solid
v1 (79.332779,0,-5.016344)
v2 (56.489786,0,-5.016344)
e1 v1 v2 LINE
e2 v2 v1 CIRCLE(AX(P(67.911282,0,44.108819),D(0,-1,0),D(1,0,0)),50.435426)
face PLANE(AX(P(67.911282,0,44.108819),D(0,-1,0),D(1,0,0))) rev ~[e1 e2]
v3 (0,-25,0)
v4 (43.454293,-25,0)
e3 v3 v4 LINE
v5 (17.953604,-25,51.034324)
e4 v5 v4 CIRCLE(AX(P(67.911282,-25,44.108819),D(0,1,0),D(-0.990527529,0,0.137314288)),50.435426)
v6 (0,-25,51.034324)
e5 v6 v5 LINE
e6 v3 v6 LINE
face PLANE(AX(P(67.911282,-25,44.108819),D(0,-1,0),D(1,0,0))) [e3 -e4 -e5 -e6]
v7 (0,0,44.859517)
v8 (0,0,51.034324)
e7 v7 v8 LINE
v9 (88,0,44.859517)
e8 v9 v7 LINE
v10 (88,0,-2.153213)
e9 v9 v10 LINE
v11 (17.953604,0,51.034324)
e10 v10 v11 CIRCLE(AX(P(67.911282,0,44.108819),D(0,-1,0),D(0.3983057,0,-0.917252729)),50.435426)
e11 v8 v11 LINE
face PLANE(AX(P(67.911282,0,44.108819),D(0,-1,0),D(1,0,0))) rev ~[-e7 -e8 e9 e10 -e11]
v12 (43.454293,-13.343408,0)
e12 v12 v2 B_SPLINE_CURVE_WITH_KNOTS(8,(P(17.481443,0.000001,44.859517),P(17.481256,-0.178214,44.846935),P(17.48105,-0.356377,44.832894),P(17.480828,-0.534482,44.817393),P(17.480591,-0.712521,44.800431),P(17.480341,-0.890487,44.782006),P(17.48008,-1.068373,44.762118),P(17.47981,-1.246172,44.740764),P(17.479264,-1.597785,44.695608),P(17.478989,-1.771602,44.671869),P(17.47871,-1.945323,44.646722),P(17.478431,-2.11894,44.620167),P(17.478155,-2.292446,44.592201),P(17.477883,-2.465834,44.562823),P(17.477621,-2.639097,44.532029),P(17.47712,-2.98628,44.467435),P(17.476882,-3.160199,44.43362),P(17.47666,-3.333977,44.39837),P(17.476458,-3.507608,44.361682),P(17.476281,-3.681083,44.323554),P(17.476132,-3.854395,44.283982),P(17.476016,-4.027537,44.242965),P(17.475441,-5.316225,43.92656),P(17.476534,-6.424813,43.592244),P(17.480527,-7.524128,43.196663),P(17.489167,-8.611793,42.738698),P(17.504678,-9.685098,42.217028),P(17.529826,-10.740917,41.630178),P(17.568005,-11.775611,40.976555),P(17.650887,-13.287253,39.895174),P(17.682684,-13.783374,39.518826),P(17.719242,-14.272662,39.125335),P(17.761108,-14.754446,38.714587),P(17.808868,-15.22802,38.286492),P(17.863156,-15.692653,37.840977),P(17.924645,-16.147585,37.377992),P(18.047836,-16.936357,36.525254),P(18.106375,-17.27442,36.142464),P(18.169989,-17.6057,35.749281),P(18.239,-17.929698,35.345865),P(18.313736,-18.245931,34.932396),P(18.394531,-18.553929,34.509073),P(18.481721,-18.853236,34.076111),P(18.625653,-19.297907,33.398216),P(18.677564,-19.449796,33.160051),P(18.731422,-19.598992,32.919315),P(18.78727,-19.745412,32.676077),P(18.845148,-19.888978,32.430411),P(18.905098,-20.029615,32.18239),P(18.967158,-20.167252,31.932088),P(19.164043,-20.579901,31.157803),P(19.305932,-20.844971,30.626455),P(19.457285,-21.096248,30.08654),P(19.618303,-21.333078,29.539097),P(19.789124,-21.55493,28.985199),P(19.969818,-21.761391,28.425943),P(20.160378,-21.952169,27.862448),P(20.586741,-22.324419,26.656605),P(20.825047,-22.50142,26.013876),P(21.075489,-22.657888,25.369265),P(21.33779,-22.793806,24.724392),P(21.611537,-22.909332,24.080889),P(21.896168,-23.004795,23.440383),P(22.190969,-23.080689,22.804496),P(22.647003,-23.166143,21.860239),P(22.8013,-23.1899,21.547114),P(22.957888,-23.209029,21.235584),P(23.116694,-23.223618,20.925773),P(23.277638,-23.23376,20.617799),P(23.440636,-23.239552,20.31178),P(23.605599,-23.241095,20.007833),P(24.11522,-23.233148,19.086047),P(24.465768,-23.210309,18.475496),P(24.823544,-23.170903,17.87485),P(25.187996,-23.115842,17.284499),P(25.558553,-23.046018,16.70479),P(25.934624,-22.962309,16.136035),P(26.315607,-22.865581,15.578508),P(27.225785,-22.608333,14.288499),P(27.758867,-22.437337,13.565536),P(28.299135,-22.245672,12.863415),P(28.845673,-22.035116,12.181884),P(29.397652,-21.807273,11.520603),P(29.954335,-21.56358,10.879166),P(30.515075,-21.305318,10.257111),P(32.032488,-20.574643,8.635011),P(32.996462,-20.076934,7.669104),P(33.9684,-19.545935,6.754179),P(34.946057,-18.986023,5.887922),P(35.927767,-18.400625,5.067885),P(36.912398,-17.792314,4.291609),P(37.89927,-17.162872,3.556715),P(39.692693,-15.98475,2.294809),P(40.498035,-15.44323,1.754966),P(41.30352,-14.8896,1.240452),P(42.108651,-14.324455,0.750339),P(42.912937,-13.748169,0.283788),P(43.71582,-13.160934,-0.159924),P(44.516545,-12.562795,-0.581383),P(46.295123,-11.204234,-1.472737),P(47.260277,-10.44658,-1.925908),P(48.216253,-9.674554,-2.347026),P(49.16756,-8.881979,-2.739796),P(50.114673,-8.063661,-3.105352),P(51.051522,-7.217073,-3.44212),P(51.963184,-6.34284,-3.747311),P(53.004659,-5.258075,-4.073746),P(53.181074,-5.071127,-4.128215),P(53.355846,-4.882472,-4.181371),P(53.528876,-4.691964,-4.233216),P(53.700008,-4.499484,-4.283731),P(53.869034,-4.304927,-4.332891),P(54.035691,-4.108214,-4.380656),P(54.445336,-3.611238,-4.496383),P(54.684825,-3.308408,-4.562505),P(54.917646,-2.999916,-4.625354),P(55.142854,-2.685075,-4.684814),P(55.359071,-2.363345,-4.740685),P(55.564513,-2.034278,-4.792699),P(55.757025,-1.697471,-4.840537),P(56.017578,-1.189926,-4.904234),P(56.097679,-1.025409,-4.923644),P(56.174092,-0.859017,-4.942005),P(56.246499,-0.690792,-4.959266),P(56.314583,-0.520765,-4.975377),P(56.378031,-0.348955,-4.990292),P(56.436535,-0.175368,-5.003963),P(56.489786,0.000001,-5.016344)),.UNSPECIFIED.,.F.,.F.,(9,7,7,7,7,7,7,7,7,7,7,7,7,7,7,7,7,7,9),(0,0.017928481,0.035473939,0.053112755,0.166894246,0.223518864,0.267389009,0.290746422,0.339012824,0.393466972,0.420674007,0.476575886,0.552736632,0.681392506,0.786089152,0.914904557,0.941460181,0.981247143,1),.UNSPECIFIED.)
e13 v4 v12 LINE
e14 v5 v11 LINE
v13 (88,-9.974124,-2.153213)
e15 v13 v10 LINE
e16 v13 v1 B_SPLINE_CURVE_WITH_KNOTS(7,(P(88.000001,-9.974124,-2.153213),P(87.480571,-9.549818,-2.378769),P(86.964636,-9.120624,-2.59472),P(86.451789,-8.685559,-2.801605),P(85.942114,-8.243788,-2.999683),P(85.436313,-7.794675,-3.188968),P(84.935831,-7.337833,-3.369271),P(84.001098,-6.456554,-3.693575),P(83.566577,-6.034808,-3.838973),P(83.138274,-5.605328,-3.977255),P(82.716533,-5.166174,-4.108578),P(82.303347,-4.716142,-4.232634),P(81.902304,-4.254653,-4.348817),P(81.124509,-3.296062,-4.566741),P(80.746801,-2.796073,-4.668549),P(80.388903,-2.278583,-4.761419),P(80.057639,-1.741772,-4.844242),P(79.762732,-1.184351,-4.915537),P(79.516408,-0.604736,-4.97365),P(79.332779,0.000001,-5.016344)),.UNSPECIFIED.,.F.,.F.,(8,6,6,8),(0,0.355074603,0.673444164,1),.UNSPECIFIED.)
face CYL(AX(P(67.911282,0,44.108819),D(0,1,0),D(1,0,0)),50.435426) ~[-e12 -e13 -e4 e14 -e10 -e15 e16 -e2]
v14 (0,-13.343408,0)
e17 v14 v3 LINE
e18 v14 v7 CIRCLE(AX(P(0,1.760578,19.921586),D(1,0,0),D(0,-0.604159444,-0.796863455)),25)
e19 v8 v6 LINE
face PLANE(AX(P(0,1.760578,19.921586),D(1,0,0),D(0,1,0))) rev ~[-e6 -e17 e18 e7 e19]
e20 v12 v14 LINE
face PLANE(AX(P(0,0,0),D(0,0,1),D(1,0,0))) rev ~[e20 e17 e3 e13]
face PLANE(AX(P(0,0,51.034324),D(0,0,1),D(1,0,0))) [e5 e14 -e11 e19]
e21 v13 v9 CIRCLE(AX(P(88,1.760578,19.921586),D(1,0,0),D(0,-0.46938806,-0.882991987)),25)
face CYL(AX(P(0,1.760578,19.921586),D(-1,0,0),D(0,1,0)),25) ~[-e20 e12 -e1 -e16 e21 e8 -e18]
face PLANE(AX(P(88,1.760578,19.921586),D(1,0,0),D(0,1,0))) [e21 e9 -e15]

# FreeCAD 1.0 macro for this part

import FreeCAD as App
import Part
import Sketcher
Q = App.Units.Quantity

doc = App.newDocument("Part")
body = doc.addObject("PartDesign::Body", "Body")

sketch1 = body.newObject("Sketcher::SketchObject", "Sketch")
sketch1.AttachmentSupport = (doc.getObject("XZ_Plane"), [""])
sketch1.MapMode = "FlatFace"
sketch1.addGeometry([
    Part.LineSegment(App.Vector(0, 51, 0), App.Vector(0, 0, 0)),
    Part.LineSegment(App.Vector(0, 0, 0), App.Vector(72, 0, 0)),
    Part.LineSegment(App.Vector(72, 0, 0), App.Vector(72, 51, 0)),
    Part.LineSegment(App.Vector(72, 51, 0), App.Vector(0, 51, 0)),
], False)
sketch1.addConstraint([
    Sketcher.Constraint("Coincident", 0, 2, 1, 1),
    Sketcher.Constraint("Coincident", 1, 2, 2, 1),
    Sketcher.Constraint("Coincident", 2, 2, 3, 1),
    Sketcher.Constraint("Coincident", 3, 2, 0, 1),
    Sketcher.Constraint("Vertical", 0),
    Sketcher.Constraint("Horizontal", 1),
    Sketcher.Constraint("Vertical", 2),
    Sketcher.Constraint("Horizontal", 3),
    Sketcher.Constraint("Coincident", 0, 2, -1, 1),
    Sketcher.Constraint("DistanceX", 1, 1, 1, 2, Q("71.515955 mm")),
    Sketcher.Constraint("DistanceY", 0, 2, 0, 1, Q("51.034324 mm")),
])
pad1 = body.newObject("PartDesign::Pad", "Pad")
pad1.Profile = sketch1
pad1.Length = 25

sketch2 = body.newObject("Sketcher::SketchObject", "Sketch001")
sketch2.AttachmentSupport = (doc.getObject("YZ_Plane"), [""])
sketch2.MapMode = "FlatFace"
sketch2.addGeometry(Part.Circle(App.Vector(2, 20, 0), App.Vector(0, 0, 1), 25), False)
sketch2.addConstraint([
    Sketcher.Constraint("Diameter", 0, Q("50 mm")),
    Sketcher.Constraint("DistanceX", -1, 1, 0, 3, Q("1.760578 mm")),
    Sketcher.Constraint("DistanceY", -1, 1, 0, 3, Q("19.921586 mm")),
])
pad2 = body.newObject("PartDesign::Pad", "Pad001")
pad2.Profile = sketch2
pad2.Length = 88

sketch3 = body.newObject("Sketcher::SketchObject", "Sketch002")
sketch3.AttachmentSupport = (doc.getObject("XZ_Plane"), [""])
sketch3.MapMode = "FlatFace"
sketch3.addGeometry(Part.Circle(App.Vector(68, 44, 0), App.Vector(0, 0, 1), 50), False)
sketch3.addConstraint([
    Sketcher.Constraint("Diameter", 0, Q("100.870853 mm")),
    Sketcher.Constraint("DistanceY", -1, 1, 0, 3, Q("44.108819 mm")),
    Sketcher.Constraint("DistanceX", -1, 1, 0, 3, Q("67.911282 mm")),
])
pad3 = body.newObject("PartDesign::Pad", "Pad002")
pad3.Profile = sketch3
pad3.Length = 25

doc.recompute()
